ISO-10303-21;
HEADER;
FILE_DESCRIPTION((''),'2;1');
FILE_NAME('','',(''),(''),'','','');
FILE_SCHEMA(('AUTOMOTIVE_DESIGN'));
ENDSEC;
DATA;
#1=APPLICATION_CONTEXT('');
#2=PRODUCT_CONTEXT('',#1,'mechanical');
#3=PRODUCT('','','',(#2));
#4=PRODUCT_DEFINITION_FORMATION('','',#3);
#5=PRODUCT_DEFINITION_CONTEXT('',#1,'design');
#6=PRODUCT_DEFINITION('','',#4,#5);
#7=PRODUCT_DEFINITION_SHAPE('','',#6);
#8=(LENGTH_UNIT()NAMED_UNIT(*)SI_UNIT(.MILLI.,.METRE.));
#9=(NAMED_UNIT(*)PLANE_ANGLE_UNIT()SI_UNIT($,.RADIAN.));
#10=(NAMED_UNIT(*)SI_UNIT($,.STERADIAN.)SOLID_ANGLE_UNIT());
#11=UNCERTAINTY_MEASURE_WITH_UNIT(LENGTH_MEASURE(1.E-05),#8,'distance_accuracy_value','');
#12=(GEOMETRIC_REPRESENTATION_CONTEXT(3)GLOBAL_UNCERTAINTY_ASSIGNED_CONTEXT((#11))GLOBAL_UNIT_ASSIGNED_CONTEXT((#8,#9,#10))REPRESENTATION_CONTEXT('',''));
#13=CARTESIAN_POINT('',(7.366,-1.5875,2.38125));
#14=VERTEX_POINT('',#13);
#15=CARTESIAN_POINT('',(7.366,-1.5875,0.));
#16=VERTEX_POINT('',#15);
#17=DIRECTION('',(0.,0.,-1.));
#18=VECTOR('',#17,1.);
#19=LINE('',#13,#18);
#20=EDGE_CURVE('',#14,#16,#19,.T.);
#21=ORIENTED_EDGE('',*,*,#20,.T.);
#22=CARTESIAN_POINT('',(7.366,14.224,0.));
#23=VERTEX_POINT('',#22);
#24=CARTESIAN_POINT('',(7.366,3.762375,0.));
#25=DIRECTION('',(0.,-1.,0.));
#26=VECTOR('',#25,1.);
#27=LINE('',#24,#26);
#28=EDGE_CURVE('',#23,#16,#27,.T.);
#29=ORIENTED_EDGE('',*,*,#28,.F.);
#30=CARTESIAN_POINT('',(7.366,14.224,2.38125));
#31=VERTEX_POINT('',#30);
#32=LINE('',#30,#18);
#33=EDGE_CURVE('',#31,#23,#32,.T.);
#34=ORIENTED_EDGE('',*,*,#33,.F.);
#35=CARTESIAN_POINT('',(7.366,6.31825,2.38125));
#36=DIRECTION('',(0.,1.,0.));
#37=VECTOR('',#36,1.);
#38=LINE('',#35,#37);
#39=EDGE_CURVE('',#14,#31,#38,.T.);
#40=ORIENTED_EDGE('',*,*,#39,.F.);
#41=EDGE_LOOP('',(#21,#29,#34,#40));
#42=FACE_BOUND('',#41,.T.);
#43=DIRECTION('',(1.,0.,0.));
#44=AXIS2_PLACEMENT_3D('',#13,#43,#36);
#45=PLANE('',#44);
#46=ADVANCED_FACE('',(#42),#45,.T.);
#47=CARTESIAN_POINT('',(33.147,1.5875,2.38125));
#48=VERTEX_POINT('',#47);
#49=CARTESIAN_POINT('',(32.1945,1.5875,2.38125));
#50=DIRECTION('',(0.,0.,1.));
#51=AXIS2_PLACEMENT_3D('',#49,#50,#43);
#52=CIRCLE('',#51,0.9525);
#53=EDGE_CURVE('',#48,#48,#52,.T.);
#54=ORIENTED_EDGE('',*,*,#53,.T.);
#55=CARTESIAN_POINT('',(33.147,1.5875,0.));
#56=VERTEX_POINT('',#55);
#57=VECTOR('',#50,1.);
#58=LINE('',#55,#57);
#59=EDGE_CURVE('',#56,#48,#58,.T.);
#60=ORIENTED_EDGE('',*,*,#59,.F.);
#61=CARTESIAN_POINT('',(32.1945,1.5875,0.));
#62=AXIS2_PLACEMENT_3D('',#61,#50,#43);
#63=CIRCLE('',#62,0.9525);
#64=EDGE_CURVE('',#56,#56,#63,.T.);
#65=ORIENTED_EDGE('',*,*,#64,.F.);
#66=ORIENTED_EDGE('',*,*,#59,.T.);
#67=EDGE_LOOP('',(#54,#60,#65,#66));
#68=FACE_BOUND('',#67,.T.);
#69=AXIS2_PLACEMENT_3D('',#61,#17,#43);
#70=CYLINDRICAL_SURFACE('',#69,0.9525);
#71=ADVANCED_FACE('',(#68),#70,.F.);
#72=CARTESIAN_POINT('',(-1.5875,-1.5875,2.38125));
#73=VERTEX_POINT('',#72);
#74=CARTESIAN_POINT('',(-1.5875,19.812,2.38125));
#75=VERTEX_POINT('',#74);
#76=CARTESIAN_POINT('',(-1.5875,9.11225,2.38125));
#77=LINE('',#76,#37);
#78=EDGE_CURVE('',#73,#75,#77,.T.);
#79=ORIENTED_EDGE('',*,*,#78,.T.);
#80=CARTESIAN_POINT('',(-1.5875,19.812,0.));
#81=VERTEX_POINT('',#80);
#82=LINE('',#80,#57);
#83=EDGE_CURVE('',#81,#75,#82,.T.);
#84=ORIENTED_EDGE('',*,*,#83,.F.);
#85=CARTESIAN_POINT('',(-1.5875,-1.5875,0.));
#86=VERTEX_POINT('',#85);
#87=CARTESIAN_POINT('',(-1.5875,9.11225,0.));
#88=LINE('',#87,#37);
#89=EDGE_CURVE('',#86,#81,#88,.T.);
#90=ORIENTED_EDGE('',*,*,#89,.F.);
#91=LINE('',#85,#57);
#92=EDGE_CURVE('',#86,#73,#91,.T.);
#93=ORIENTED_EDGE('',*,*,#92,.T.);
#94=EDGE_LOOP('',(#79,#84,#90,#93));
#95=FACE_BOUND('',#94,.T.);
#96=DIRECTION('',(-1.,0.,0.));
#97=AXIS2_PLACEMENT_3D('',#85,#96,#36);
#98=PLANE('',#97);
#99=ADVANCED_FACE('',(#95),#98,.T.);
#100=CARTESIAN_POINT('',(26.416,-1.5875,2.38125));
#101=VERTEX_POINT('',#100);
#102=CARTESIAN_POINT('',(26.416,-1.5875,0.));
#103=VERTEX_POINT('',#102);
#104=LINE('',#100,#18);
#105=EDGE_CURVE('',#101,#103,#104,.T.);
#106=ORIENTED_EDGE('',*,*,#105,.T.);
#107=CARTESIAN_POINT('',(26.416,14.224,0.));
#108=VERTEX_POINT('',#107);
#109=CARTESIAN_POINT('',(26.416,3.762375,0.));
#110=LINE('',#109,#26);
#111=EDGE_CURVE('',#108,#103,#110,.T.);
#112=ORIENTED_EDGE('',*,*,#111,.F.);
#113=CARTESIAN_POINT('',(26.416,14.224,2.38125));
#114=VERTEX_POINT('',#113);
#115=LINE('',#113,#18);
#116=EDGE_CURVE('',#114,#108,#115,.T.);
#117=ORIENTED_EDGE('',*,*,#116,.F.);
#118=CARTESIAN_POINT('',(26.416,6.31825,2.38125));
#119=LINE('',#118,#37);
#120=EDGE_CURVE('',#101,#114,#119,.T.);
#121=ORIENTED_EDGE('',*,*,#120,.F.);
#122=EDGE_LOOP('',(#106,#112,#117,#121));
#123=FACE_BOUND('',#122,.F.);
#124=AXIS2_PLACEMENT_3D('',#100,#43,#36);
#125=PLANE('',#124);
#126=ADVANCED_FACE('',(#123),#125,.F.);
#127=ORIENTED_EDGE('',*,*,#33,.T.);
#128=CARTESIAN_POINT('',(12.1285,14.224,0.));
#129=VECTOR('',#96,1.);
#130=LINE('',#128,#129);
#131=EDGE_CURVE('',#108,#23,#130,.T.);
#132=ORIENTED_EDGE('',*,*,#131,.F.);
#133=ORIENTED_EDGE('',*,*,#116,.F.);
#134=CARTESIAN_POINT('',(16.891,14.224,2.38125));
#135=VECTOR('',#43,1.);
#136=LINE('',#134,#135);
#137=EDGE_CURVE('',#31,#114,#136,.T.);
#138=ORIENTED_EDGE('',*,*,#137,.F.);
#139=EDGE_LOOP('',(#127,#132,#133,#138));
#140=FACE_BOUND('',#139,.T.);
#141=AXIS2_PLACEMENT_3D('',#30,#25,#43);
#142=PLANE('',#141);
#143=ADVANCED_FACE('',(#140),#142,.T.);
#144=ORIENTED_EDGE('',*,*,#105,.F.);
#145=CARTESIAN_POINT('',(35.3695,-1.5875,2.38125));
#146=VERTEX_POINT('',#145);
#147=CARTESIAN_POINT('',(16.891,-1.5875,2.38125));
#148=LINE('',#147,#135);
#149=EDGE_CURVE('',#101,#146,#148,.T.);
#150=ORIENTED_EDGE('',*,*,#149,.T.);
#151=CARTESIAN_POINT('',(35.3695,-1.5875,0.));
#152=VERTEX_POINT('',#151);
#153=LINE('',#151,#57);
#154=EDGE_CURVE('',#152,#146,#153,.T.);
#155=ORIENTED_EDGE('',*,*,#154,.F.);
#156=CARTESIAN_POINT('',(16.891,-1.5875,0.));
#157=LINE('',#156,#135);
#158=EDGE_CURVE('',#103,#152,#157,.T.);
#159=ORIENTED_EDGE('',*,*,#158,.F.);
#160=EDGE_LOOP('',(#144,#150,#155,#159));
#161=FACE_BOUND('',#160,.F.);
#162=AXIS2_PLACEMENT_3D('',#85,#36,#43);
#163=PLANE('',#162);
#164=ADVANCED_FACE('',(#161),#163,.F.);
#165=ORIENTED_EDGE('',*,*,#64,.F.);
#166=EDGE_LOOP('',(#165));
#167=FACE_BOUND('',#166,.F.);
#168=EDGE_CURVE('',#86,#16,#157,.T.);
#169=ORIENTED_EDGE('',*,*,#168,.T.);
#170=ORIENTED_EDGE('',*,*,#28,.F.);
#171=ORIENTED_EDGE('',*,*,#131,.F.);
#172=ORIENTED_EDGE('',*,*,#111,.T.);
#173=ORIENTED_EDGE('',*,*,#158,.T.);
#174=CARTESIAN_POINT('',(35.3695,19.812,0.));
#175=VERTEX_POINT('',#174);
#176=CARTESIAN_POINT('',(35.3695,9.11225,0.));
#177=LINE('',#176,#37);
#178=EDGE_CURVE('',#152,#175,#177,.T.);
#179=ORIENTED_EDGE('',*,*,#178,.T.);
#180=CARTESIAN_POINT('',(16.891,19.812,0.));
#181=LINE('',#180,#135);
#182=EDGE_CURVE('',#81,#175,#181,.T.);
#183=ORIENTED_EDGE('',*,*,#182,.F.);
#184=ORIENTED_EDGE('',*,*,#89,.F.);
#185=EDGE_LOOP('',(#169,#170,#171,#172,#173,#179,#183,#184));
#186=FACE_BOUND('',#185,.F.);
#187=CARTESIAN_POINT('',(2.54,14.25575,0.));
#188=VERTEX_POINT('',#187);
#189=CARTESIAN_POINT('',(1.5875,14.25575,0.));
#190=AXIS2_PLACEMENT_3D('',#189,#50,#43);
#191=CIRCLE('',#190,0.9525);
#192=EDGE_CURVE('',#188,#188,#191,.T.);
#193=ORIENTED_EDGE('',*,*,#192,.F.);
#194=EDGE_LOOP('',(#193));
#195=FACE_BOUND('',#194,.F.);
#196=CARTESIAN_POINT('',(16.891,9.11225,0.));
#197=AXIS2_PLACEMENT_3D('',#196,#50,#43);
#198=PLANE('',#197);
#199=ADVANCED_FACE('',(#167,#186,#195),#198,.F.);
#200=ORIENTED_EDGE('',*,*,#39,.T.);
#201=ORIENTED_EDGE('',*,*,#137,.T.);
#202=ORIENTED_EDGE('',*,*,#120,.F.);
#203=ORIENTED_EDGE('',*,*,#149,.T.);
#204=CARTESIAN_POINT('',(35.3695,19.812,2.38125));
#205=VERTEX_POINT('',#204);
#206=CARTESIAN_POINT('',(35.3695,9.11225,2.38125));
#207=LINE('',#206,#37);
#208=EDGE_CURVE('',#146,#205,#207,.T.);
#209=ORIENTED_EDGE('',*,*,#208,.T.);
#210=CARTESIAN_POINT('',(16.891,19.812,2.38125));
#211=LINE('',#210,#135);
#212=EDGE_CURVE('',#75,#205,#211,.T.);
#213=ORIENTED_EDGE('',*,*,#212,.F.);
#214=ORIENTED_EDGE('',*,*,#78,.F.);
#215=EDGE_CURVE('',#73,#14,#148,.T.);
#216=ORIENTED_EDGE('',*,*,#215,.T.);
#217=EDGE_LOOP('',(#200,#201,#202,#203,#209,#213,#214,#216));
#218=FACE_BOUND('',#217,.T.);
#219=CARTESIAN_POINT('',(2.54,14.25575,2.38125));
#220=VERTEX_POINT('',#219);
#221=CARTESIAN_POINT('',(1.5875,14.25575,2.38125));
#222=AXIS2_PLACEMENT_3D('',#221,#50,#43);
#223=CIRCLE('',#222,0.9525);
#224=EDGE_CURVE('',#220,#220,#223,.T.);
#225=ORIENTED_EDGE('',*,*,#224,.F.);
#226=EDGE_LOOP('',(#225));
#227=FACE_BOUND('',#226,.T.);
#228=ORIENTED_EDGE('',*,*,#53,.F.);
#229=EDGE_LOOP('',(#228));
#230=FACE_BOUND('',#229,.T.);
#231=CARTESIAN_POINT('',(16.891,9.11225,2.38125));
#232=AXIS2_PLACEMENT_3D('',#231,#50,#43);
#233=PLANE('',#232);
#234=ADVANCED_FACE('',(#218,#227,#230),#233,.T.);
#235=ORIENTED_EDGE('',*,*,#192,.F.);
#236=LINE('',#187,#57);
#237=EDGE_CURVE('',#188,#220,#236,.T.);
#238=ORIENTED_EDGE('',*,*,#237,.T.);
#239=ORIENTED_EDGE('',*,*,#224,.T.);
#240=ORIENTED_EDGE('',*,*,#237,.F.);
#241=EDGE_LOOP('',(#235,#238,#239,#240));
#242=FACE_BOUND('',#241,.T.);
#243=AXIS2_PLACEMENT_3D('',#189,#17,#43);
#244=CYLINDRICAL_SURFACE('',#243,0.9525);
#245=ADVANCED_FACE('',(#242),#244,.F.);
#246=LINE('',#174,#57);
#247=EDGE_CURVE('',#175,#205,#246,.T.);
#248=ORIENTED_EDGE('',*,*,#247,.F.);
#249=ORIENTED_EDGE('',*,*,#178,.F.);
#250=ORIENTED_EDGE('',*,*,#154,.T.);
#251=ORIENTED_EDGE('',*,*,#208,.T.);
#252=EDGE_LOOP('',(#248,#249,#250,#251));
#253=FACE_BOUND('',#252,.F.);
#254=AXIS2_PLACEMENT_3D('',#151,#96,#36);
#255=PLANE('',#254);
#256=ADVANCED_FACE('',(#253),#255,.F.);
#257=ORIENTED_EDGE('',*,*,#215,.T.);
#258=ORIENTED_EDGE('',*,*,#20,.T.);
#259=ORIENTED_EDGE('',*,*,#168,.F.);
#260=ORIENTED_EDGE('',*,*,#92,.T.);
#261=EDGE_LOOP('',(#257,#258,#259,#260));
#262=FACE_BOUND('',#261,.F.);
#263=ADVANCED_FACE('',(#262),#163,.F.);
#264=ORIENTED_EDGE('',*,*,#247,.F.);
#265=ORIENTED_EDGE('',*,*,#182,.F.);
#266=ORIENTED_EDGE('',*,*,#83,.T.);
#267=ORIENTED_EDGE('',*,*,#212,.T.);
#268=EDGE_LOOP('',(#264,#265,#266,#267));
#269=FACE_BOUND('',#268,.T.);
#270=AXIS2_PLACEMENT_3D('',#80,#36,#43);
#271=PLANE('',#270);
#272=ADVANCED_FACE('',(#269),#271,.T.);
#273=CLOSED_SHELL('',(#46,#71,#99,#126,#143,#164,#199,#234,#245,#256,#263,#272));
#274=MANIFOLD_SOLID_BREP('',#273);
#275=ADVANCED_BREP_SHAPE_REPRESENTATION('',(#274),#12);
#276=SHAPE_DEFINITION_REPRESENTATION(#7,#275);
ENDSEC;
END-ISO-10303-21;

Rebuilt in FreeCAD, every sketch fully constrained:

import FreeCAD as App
import Part
import Sketcher
Q = App.Units.Quantity

doc = App.newDocument("Part")
body = doc.addObject("PartDesign::Body", "Body")

sketch1 = body.newObject("Sketcher::SketchObject", "Sketch")
sketch1.AttachmentSupport = (doc.getObject("XY_Plane"), [""])
sketch1.MapMode = "FlatFace"
sketch1.addGeometry([
    Part.LineSegment(App.Vector(-1.6, 19.8, 0), App.Vector(-1.6, -1.6, 0)),
    Part.LineSegment(App.Vector(-1.6, -1.6, 0), App.Vector(35.4, -1.6, 0)),
    Part.LineSegment(App.Vector(35.4, -1.6, 0), App.Vector(35.4, 19.8, 0)),
    Part.LineSegment(App.Vector(35.4, 19.8, 0), App.Vector(-1.6, 19.8, 0)),
    Part.Circle(App.Vector(32.2, 1.6, 0), App.Vector(0, 0, 1), 1),
    Part.Circle(App.Vector(1.6, 14.3, 0), App.Vector(0, 0, 1), 1),
], False)
sketch1.addConstraint([
    Sketcher.Constraint("Coincident", 0, 2, 1, 1),
    Sketcher.Constraint("Coincident", 1, 2, 2, 1),
    Sketcher.Constraint("Coincident", 2, 2, 3, 1),
    Sketcher.Constraint("Coincident", 3, 2, 0, 1),
    Sketcher.Constraint("Vertical", 0),
    Sketcher.Constraint("Horizontal", 1),
    Sketcher.Constraint("Vertical", 2),
    Sketcher.Constraint("Horizontal", 3),
    Sketcher.Constraint("Equal", 4, 5),
    Sketcher.Constraint("Diameter", 4, Q("0.075 in")),
    Sketcher.Constraint("DistanceX", 1, 1, 1, 2, Q("1.455 in")),
    Sketcher.Constraint("DistanceY", -1, 1, 2, 2, Q("0.78 in")),
    Sketcher.Constraint("DistanceX", 0, 2, 4, 3, Q("1.33 in")),
    Sketcher.Constraint("DistanceX", 5, 3, 1, 2, Q("1.33 in")),
    Sketcher.Constraint("DistanceY", 0, 2, 0, 1, Q("0.8425 in")),
    Sketcher.Constraint("DistanceY", -1, 1, 4, 3, Q("0.0625 in")),
    Sketcher.Constraint("DistanceX", -1, 1, 5, 3, Q("0.0625 in")),
    Sketcher.Constraint("DistanceY", 5, 3, 2, 2, Q("0.21875 in")),
])
pad1 = body.newObject("PartDesign::Pad", "Pad")
pad1.Profile = sketch1
pad1.Length = Q("0.09375 in")

sketch2 = body.newObject("Sketcher::SketchObject", "Sketch001")
sketch2.AttachmentSupport = (doc.getObject("XY_Plane"), [""])
sketch2.MapMode = "FlatFace"
sketch2.AttachmentOffset = App.Placement(App.Vector(0, 0, 0.09375 * 25.4), App.Rotation())
sketch2.addGeometry([
    Part.LineSegment(App.Vector(7, 14, 0), App.Vector(7, -2, 0)),
    Part.LineSegment(App.Vector(7, -2, 0), App.Vector(26, -2, 0)),
    Part.LineSegment(App.Vector(26, -2, 0), App.Vector(26, 14, 0)),
    Part.LineSegment(App.Vector(26, 14, 0), App.Vector(7, 14, 0)),
], False)
sketch2.addConstraint([
    Sketcher.Constraint("Coincident", 0, 2, 1, 1),
    Sketcher.Constraint("Coincident", 1, 2, 2, 1),
    Sketcher.Constraint("Coincident", 2, 2, 3, 1),
    Sketcher.Constraint("Coincident", 3, 2, 0, 1),
    Sketcher.Constraint("Vertical", 0),
    Sketcher.Constraint("Horizontal", 1),
    Sketcher.Constraint("Vertical", 2),
    Sketcher.Constraint("Horizontal", 3),
    Sketcher.Constraint("DistanceX", 1, 1, 1, 2, Q("0.75 in")),
    Sketcher.Constraint("DistanceX", -1, 1, 0, 2, Q("0.29 in")),
    Sketcher.Constraint("DistanceY", -1, 1, 2, 2, Q("0.56 in")),
    Sketcher.Constraint("DistanceY", 0, 2, 0, 1, Q("0.6225 in")),
])
pocket1 = body.newObject("PartDesign::Pocket", "Pocket")
pocket1.Profile = sketch2
pocket1.Type = "UpToFirst"

doc.recompute()
